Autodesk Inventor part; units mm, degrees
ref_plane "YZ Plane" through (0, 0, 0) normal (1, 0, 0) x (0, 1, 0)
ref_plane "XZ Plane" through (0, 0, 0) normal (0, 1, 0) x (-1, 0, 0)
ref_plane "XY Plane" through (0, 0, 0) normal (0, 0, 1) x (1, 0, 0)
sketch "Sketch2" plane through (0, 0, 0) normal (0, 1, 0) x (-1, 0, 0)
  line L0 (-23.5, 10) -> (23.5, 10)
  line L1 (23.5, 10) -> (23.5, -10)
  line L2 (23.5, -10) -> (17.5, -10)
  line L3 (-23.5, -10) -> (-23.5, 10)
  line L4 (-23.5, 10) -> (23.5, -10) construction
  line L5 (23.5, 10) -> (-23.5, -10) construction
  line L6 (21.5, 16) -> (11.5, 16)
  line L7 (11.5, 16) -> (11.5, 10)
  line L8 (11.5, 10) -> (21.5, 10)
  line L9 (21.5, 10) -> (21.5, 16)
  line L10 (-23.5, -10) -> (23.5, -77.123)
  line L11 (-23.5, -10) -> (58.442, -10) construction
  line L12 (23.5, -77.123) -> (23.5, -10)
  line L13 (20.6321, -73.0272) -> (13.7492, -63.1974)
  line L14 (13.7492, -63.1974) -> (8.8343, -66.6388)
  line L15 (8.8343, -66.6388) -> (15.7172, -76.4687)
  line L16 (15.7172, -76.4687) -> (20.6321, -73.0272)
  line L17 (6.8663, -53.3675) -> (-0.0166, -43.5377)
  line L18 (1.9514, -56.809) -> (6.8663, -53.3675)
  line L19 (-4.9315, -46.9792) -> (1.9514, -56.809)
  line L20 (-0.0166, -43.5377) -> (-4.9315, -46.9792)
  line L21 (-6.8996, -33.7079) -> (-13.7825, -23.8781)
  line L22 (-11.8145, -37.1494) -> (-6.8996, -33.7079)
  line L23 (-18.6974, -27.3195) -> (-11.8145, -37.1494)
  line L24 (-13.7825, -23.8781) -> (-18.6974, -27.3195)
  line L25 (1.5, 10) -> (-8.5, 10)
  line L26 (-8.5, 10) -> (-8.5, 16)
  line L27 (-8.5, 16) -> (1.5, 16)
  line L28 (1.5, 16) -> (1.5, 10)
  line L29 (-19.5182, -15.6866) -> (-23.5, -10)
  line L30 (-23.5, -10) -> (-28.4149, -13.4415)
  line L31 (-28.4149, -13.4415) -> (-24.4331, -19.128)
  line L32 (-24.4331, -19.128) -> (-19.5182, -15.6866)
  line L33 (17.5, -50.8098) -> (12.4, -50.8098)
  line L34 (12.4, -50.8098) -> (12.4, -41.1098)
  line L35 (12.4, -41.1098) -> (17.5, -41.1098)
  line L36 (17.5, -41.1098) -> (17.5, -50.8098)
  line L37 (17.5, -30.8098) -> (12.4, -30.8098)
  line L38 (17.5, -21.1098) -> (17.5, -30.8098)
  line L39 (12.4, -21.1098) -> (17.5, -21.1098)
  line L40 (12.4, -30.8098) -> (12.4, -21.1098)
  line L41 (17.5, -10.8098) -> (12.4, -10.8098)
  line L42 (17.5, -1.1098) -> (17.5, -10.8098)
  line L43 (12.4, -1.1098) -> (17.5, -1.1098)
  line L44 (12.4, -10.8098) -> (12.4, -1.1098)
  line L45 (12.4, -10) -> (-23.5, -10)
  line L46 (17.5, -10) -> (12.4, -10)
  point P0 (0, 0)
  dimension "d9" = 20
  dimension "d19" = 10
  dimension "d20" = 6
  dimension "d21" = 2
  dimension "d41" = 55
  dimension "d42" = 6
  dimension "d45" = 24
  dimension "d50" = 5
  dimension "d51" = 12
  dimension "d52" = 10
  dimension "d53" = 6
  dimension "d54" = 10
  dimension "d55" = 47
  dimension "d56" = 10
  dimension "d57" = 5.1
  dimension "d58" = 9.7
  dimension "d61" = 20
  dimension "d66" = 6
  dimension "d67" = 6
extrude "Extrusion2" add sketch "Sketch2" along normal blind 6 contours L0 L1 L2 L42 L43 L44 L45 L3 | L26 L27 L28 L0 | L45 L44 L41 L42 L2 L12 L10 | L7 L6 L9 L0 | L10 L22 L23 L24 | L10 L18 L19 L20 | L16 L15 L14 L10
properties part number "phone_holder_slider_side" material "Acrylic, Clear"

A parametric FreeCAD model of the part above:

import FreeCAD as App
import Part
import Sketcher
from FreeCAD import Vector
Q = App.Units.Quantity


def add_polygon(sketch, points):
    """Adds a closed chain of lines whose ends are joined by coincident constraints."""
    first, n = sketch.GeometryCount, len(points)
    for a, b in zip(points, points[1:] + points[:1]):
        sketch.addGeometry(Part.LineSegment(App.Vector(*a, 0), App.Vector(*b, 0)), False)
    for i in range(n):
        sketch.addConstraint(Sketcher.Constraint("Coincident", first + i, 2, first + (i + 1) % n, 1))

doc = App.newDocument("Part")
body = doc.addObject("PartDesign::Body", "Body")

# Sketch on XZ plane
sketch1 = doc.addObject("Sketcher::SketchObject", "Sketch")
body.addObject(sketch1)
sketch1.AttachmentSupport = (doc.XZ_Plane, [""])
sketch1.MapMode = "FlatFace"
add_polygon(sketch1, [(8.5, 10), (23.5, 10), (23.5, -10), (13.7825, -23.8781), (18.6974, -27.3195), (11.8145, -37.1494), (6.899574, -33.707881), (0.0166, -43.5377), (4.9315, -46.9792), (-1.9514, -56.809), (-6.866253, -53.367533), (-13.7492, -63.1974), (-8.8343, -66.6388), (-15.7172, -76.4687), (-20.632095, -73.027204), (-23.5, -77.123), (-23.5, 10), (-21.5, 10), (-21.5, 16), (-11.5, 16), (-11.5, 10), (-1.5, 10), (-1.5, 16), (8.5, 16)])  # lines 0-23
add_polygon(sketch1, [(-17.5, -1.1098), (-17.5, -10.8098), (-12.4, -10.8098), (-12.4, -1.1098)])  # lines 24-27
add_polygon(sketch1, [(-12.4, -30.8098), (-12.4, -21.1098), (-17.5, -21.1098), (-17.5, -30.8098)])  # lines 28-31
add_polygon(sketch1, [(-17.5, -41.1098), (-17.5, -50.8098), (-12.4, -50.8098), (-12.4, -41.1098)])  # lines 32-35
sketch1.addConstraint([
    Sketcher.Constraint("Horizontal", 0),
    Sketcher.Constraint("Vertical", 1),
    Sketcher.Constraint("Vertical", 15),
    Sketcher.Constraint("Horizontal", 16),
    Sketcher.Constraint("Vertical", 17),
    Sketcher.Constraint("Horizontal", 18),
    Sketcher.Constraint("Vertical", 19),
    Sketcher.Constraint("Horizontal", 20),
    Sketcher.Constraint("Vertical", 21),
    Sketcher.Constraint("Horizontal", 22),
    Sketcher.Constraint("Vertical", 23),
    Sketcher.Constraint("Vertical", 24),
    Sketcher.Constraint("Horizontal", 25),
    Sketcher.Constraint("Vertical", 26),
    Sketcher.Constraint("Horizontal", 27),
    Sketcher.Constraint("Vertical", 28),
    Sketcher.Constraint("Horizontal", 29),
    Sketcher.Constraint("Vertical", 30),
    Sketcher.Constraint("Horizontal", 31),
    Sketcher.Constraint("Vertical", 32),
    Sketcher.Constraint("Horizontal", 33),
    Sketcher.Constraint("Vertical", 34),
    Sketcher.Constraint("Horizontal", 35),
    Sketcher.Constraint("Symmetric", 1, 2, 15, 2, -1, 1),
    Sketcher.Constraint("Perpendicular", 2, 3),
    Sketcher.Constraint("Perpendicular", 3, 4),
    Sketcher.Constraint("Perpendicular", 4, 5),
    Sketcher.Constraint("Perpendicular", 5, 6),
    Sketcher.Constraint("Perpendicular", 6, 7),
    Sketcher.Constraint("Perpendicular", 7, 8),
    Sketcher.Constraint("Perpendicular", 8, 9),
    Sketcher.Constraint("Perpendicular", 9, 10),
    Sketcher.Constraint("Perpendicular", 10, 11),
    Sketcher.Constraint("Perpendicular", 11, 12),
    Sketcher.Constraint("Perpendicular", 12, 13),
    Sketcher.Constraint("Perpendicular", 13, 14),
    Sketcher.Constraint("Horizontal", 0, 2, 15, 2),
    Sketcher.Constraint("Horizontal", 16, 2, 19, 2),
    Sketcher.Constraint("Horizontal", 18, 2, 21, 2),
    Sketcher.Constraint("Vertical", 26, 2, 28, 2),
    Sketcher.Constraint("Vertical", 27, 2, 29, 2),
    Sketcher.Constraint("Vertical", 30, 2, 32, 2),
    Sketcher.Constraint("Vertical", 31, 2, 33, 2),
    Sketcher.Constraint("Equal", 18, 20),
    Sketcher.Constraint("Equal", 20, 22),
    Sketcher.Constraint("Equal", 26, 28),
    Sketcher.Constraint("Equal", 30, 32),
    Sketcher.Constraint("Equal", 3, 5),
    Sketcher.Constraint("Equal", 4, 6),
    Sketcher.Constraint("Equal", 5, 7),
    Sketcher.Constraint("Equal", 6, 8),
    Sketcher.Constraint("Equal", 7, 9),
    Sketcher.Constraint("Equal", 8, 10),
    Sketcher.Constraint("Equal", 9, 11),
    Sketcher.Constraint("Equal", 10, 12),
    Sketcher.Constraint("Equal", 11, 13),
    Sketcher.Constraint("DistanceX", 16, 1, 16, 2, Q("2 mm")),
    Sketcher.Constraint("DistanceX", 18, 1, 18, 2, Q("10 mm")),
    Sketcher.Constraint("DistanceY", 1, 2, 1, 1, Q("20 mm")),
    Sketcher.Constraint("DistanceY", 17, 1, 17, 2, Q("6 mm")),
    Sketcher.Constraint("Distance", 3, Q("6 mm")),
    Sketcher.Constraint("Distance", 4, Q("12 mm")),
    Sketcher.Constraint("Distance", 14, Q("5 mm")),
    Sketcher.Constraint("DistanceX", 25, 1, 25, 2, Q("5.1 mm")),
    Sketcher.Constraint("DistanceY", 24, 2, 24, 1, Q("9.7 mm")),
    Sketcher.Constraint("DistanceX", 15, 2, 0, 2, Q("47 mm")),
    Sketcher.Constraint("DistanceX", 15, 2, 24, 2, Q("6 mm")),
    Sketcher.Constraint("DistanceY", 28, 2, 26, 2, Q("20 mm")),
    Sketcher.Constraint("Angle", 2, Q("-124.9999 deg")),
    Sketcher.Constraint("DistanceY", 34, 2, 31, 2, Q("10.3 mm")),
    Sketcher.Constraint("DistanceY", 5, 2, 28, 2, Q("12.598 mm")),
])
pad1 = doc.addObject("PartDesign::Pad", "Pad")
body.addObject(pad1)
pad1.Profile = sketch1
pad1.Length = 6
pad1.Reversed = True

doc.recompute()
